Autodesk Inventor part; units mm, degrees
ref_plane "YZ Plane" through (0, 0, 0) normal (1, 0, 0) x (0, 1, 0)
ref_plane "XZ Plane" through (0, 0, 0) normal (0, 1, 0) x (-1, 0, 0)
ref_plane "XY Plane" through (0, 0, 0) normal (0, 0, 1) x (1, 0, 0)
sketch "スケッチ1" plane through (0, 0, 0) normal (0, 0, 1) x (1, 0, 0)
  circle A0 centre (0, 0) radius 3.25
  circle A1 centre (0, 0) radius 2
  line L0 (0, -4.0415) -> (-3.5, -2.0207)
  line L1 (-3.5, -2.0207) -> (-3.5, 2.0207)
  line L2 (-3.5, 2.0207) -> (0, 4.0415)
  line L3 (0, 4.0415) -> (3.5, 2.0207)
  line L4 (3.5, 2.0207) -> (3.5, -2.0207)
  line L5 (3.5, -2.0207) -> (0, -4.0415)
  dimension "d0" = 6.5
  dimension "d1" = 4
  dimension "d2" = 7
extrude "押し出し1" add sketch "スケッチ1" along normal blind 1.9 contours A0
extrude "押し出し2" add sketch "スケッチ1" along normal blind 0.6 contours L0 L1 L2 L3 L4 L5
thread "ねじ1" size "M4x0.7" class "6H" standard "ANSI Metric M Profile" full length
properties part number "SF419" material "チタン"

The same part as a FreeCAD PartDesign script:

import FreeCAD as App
import Part
import Sketcher
from FreeCAD import Vector
Q = App.Units.Quantity

doc = App.newDocument("Part")
body = doc.addObject("PartDesign::Body", "Body")

# Sketch on XY plane
sketch1 = body.newObject("Sketcher::SketchObject", "Sketch")
sketch1.AttachmentSupport = (doc.getObject("XY_Plane"), [""])
sketch1.MapMode = "FlatFace"
sketch1.addGeometry(Part.Circle(Vector(0, 0, 0), Vector(0, 0, 1), 3.25), False)
sketch1.addGeometry(Part.Circle(Vector(0, 0, 0), Vector(0, 0, 1), 2), False)
sketch1.addConstraint(Sketcher.Constraint("Coincident", 0, 3, -1, 1))
sketch1.addConstraint(Sketcher.Constraint("Coincident", 1, 3, -1, 1))
sketch1.addConstraint(Sketcher.Constraint("Diameter", 1, Q("4 mm")))
sketch1.addConstraint(Sketcher.Constraint("Diameter", 0, Q("6.5 mm")))
pad1 = body.newObject("PartDesign::Pad", "Pad")
pad1.Profile = sketch1
pad1.Length = 1.9

# Sketch on XY plane
sketch2 = body.newObject("Sketcher::SketchObject", "Sketch001")
sketch2.AttachmentSupport = (doc.getObject("XY_Plane"), [""])
sketch2.MapMode = "FlatFace"
sketch2.addGeometry(Part.LineSegment(Vector(-3.5, -2.0207, 0), Vector(0, -4.0415, 0)), False)
sketch2.addGeometry(Part.LineSegment(Vector(0, -4.0415, 0), Vector(3.5, -2.0207, 0)), False)
sketch2.addGeometry(Part.LineSegment(Vector(3.5, -2.0207, 0), Vector(3.5, 2.0207, 0)), False)
sketch2.addGeometry(Part.LineSegment(Vector(3.5, 2.0207, 0), Vector(0, 4.0415, 0)), False)
sketch2.addGeometry(Part.LineSegment(Vector(0, 4.0415, 0), Vector(-3.5, 2.0207, 0)), False)
sketch2.addGeometry(Part.LineSegment(Vector(-3.5, 2.0207, 0), Vector(-3.5, -2.0207, 0)), False)
sketch2.addGeometry(Part.Circle(Vector(0, 0, 0), Vector(0, 0, 1), 3.25), False)
sketch2.addConstraint(Sketcher.Constraint("Coincident", 0, 2, 1, 1))
sketch2.addConstraint(Sketcher.Constraint("Coincident", 1, 2, 2, 1))
sketch2.addConstraint(Sketcher.Constraint("Coincident", 2, 2, 3, 1))
sketch2.addConstraint(Sketcher.Constraint("Coincident", 3, 2, 4, 1))
sketch2.addConstraint(Sketcher.Constraint("Coincident", 4, 2, 5, 1))
sketch2.addConstraint(Sketcher.Constraint("Coincident", 5, 2, 0, 1))
sketch2.addConstraint(Sketcher.Constraint("Vertical", 2))
sketch2.addConstraint(Sketcher.Constraint("Vertical", 5))
sketch2.addConstraint(Sketcher.Constraint("Coincident", 6, 3, -1, 1))
sketch2.addConstraint(Sketcher.Constraint("Symmetric", 0, 2, 3, 2, -1, 1))
sketch2.addConstraint(Sketcher.Constraint("Symmetric", 1, 2, 4, 2, -1, 1))
sketch2.addConstraint(Sketcher.Constraint("PointOnObject", 0, 2, -2))
sketch2.addConstraint(Sketcher.Constraint("Parallel", 0, 3))
sketch2.addConstraint(Sketcher.Constraint("Horizontal", 2, 2, 4, 2))
sketch2.addConstraint(Sketcher.Constraint("Diameter", 6, Q("6.5 mm")))
sketch2.addConstraint(Sketcher.Constraint("DistanceX", 4, 2, 2, 2, Q("7 mm")))
sketch2.addConstraint(Sketcher.Constraint("Angle", 0, Q("-30.001 deg")))
sketch2.addConstraint(Sketcher.Constraint("DistanceY", 2, 1, 2, 2, Q("4.0414 mm")))
pad2 = body.newObject("PartDesign::Pad", "Pad001")
pad2.Profile = sketch2
pad2.Length = 0.6

doc.recompute()
